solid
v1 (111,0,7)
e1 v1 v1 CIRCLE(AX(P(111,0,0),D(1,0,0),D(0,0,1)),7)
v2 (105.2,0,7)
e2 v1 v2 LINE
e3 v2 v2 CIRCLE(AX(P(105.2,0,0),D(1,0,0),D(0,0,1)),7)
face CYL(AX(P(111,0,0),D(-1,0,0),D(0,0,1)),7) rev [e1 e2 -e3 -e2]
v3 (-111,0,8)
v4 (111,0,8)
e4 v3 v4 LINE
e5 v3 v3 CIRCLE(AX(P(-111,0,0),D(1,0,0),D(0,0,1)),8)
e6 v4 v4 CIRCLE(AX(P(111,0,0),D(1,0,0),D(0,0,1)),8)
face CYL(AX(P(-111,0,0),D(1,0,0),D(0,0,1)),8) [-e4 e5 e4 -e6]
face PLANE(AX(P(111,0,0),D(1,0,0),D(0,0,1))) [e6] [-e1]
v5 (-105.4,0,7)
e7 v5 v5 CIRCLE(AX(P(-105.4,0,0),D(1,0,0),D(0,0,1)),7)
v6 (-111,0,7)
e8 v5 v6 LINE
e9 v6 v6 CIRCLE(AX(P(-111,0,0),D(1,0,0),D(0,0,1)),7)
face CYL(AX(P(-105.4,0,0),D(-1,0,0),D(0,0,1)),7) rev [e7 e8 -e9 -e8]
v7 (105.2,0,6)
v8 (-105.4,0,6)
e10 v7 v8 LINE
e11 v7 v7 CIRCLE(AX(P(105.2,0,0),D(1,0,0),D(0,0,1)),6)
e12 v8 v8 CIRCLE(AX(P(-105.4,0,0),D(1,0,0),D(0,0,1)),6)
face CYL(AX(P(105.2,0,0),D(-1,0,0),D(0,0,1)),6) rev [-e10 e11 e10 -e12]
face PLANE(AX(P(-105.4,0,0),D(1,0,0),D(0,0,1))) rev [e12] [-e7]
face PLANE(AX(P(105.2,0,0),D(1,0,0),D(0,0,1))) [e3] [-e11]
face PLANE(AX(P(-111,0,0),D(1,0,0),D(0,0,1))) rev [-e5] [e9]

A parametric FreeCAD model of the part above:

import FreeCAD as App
import Part
import Sketcher
from FreeCAD import Vector
Q = App.Units.Quantity


def add_polygon(sketch, points):
    """Adds a closed chain of lines whose ends are joined by coincident constraints."""
    first, n = sketch.GeometryCount, len(points)
    for a, b in zip(points, points[1:] + points[:1]):
        sketch.addGeometry(Part.LineSegment(App.Vector(*a, 0), App.Vector(*b, 0)), False)
    for i in range(n):
        sketch.addConstraint(Sketcher.Constraint("Coincident", first + i, 2, first + (i + 1) % n, 1))

doc = App.newDocument("Part")
params = doc.addObject("Spreadsheet::Sheet", "Params")
for row, (alias, value) in enumerate([
    ("sketch1_width", "222 mm"),
    ("sketch1_height", "1 mm"),
    ("sketch1_width2", "5.6 mm"),
    ("sketch1_width3", "210.6 mm"),
    ("revolution_angle", "360 deg"),
], start=1):
    params.set(f"A{row}", alias)
    params.set(f"B{row}", "=" + value)
    params.setAlias(f"B{row}", alias)

body = doc.addObject("PartDesign::Body", "Body")

sketch1 = body.newObject("Sketcher::SketchObject", "Sketch")
sketch1.AttachmentSupport = (doc.getObject("XZ_Plane"), [""])
sketch1.MapMode = "FlatFace"
add_polygon(sketch1, [(111, 8), (-111, 8), (-111, 7), (-105.4, 7), (-105.4, 6), (105.2, 6), (105.2, 7), (111, 7)])
sketch1.addConstraint([
    Sketcher.Constraint("Horizontal", 0),
    Sketcher.Constraint("Vertical", 1),
    Sketcher.Constraint("Horizontal", 2),
    Sketcher.Constraint("Vertical", 3),
    Sketcher.Constraint("Horizontal", 4),
    Sketcher.Constraint("Vertical", 5),
    Sketcher.Constraint("Horizontal", 6),
    Sketcher.Constraint("Vertical", 7),
    Sketcher.Constraint("Symmetric", 1, 2, 6, 2, -2),
    Sketcher.Constraint("Equal", 1, 3),
    Sketcher.Constraint("DistanceX", 0, 2, 0, 1, Q("222 mm")),
    Sketcher.Constraint("DistanceY", 1, 2, 1, 1, Q("1 mm")),
    Sketcher.Constraint("DistanceX", 2, 1, 2, 2, Q("5.6 mm")),
    Sketcher.Constraint("DistanceX", 4, 1, 4, 2, Q("210.6 mm")),
    Sketcher.Constraint("DistanceY", -1, 1, 0, 2, Q("8 mm")),
])
sketch1.setExpression("Constraints[18]", "Params.sketch1_width")
sketch1.setExpression("Constraints[19]", "Params.sketch1_height")
sketch1.setExpression("Constraints[20]", "Params.sketch1_width2")
sketch1.setExpression("Constraints[21]", "Params.sketch1_width3")
revolution = body.newObject("PartDesign::Revolution", "Revolution")
revolution.Profile = sketch1
revolution.ReferenceAxis = (sketch1, ["H_Axis"])
revolution.setExpression("Angle", "Params.revolution_angle")

doc.recompute()
